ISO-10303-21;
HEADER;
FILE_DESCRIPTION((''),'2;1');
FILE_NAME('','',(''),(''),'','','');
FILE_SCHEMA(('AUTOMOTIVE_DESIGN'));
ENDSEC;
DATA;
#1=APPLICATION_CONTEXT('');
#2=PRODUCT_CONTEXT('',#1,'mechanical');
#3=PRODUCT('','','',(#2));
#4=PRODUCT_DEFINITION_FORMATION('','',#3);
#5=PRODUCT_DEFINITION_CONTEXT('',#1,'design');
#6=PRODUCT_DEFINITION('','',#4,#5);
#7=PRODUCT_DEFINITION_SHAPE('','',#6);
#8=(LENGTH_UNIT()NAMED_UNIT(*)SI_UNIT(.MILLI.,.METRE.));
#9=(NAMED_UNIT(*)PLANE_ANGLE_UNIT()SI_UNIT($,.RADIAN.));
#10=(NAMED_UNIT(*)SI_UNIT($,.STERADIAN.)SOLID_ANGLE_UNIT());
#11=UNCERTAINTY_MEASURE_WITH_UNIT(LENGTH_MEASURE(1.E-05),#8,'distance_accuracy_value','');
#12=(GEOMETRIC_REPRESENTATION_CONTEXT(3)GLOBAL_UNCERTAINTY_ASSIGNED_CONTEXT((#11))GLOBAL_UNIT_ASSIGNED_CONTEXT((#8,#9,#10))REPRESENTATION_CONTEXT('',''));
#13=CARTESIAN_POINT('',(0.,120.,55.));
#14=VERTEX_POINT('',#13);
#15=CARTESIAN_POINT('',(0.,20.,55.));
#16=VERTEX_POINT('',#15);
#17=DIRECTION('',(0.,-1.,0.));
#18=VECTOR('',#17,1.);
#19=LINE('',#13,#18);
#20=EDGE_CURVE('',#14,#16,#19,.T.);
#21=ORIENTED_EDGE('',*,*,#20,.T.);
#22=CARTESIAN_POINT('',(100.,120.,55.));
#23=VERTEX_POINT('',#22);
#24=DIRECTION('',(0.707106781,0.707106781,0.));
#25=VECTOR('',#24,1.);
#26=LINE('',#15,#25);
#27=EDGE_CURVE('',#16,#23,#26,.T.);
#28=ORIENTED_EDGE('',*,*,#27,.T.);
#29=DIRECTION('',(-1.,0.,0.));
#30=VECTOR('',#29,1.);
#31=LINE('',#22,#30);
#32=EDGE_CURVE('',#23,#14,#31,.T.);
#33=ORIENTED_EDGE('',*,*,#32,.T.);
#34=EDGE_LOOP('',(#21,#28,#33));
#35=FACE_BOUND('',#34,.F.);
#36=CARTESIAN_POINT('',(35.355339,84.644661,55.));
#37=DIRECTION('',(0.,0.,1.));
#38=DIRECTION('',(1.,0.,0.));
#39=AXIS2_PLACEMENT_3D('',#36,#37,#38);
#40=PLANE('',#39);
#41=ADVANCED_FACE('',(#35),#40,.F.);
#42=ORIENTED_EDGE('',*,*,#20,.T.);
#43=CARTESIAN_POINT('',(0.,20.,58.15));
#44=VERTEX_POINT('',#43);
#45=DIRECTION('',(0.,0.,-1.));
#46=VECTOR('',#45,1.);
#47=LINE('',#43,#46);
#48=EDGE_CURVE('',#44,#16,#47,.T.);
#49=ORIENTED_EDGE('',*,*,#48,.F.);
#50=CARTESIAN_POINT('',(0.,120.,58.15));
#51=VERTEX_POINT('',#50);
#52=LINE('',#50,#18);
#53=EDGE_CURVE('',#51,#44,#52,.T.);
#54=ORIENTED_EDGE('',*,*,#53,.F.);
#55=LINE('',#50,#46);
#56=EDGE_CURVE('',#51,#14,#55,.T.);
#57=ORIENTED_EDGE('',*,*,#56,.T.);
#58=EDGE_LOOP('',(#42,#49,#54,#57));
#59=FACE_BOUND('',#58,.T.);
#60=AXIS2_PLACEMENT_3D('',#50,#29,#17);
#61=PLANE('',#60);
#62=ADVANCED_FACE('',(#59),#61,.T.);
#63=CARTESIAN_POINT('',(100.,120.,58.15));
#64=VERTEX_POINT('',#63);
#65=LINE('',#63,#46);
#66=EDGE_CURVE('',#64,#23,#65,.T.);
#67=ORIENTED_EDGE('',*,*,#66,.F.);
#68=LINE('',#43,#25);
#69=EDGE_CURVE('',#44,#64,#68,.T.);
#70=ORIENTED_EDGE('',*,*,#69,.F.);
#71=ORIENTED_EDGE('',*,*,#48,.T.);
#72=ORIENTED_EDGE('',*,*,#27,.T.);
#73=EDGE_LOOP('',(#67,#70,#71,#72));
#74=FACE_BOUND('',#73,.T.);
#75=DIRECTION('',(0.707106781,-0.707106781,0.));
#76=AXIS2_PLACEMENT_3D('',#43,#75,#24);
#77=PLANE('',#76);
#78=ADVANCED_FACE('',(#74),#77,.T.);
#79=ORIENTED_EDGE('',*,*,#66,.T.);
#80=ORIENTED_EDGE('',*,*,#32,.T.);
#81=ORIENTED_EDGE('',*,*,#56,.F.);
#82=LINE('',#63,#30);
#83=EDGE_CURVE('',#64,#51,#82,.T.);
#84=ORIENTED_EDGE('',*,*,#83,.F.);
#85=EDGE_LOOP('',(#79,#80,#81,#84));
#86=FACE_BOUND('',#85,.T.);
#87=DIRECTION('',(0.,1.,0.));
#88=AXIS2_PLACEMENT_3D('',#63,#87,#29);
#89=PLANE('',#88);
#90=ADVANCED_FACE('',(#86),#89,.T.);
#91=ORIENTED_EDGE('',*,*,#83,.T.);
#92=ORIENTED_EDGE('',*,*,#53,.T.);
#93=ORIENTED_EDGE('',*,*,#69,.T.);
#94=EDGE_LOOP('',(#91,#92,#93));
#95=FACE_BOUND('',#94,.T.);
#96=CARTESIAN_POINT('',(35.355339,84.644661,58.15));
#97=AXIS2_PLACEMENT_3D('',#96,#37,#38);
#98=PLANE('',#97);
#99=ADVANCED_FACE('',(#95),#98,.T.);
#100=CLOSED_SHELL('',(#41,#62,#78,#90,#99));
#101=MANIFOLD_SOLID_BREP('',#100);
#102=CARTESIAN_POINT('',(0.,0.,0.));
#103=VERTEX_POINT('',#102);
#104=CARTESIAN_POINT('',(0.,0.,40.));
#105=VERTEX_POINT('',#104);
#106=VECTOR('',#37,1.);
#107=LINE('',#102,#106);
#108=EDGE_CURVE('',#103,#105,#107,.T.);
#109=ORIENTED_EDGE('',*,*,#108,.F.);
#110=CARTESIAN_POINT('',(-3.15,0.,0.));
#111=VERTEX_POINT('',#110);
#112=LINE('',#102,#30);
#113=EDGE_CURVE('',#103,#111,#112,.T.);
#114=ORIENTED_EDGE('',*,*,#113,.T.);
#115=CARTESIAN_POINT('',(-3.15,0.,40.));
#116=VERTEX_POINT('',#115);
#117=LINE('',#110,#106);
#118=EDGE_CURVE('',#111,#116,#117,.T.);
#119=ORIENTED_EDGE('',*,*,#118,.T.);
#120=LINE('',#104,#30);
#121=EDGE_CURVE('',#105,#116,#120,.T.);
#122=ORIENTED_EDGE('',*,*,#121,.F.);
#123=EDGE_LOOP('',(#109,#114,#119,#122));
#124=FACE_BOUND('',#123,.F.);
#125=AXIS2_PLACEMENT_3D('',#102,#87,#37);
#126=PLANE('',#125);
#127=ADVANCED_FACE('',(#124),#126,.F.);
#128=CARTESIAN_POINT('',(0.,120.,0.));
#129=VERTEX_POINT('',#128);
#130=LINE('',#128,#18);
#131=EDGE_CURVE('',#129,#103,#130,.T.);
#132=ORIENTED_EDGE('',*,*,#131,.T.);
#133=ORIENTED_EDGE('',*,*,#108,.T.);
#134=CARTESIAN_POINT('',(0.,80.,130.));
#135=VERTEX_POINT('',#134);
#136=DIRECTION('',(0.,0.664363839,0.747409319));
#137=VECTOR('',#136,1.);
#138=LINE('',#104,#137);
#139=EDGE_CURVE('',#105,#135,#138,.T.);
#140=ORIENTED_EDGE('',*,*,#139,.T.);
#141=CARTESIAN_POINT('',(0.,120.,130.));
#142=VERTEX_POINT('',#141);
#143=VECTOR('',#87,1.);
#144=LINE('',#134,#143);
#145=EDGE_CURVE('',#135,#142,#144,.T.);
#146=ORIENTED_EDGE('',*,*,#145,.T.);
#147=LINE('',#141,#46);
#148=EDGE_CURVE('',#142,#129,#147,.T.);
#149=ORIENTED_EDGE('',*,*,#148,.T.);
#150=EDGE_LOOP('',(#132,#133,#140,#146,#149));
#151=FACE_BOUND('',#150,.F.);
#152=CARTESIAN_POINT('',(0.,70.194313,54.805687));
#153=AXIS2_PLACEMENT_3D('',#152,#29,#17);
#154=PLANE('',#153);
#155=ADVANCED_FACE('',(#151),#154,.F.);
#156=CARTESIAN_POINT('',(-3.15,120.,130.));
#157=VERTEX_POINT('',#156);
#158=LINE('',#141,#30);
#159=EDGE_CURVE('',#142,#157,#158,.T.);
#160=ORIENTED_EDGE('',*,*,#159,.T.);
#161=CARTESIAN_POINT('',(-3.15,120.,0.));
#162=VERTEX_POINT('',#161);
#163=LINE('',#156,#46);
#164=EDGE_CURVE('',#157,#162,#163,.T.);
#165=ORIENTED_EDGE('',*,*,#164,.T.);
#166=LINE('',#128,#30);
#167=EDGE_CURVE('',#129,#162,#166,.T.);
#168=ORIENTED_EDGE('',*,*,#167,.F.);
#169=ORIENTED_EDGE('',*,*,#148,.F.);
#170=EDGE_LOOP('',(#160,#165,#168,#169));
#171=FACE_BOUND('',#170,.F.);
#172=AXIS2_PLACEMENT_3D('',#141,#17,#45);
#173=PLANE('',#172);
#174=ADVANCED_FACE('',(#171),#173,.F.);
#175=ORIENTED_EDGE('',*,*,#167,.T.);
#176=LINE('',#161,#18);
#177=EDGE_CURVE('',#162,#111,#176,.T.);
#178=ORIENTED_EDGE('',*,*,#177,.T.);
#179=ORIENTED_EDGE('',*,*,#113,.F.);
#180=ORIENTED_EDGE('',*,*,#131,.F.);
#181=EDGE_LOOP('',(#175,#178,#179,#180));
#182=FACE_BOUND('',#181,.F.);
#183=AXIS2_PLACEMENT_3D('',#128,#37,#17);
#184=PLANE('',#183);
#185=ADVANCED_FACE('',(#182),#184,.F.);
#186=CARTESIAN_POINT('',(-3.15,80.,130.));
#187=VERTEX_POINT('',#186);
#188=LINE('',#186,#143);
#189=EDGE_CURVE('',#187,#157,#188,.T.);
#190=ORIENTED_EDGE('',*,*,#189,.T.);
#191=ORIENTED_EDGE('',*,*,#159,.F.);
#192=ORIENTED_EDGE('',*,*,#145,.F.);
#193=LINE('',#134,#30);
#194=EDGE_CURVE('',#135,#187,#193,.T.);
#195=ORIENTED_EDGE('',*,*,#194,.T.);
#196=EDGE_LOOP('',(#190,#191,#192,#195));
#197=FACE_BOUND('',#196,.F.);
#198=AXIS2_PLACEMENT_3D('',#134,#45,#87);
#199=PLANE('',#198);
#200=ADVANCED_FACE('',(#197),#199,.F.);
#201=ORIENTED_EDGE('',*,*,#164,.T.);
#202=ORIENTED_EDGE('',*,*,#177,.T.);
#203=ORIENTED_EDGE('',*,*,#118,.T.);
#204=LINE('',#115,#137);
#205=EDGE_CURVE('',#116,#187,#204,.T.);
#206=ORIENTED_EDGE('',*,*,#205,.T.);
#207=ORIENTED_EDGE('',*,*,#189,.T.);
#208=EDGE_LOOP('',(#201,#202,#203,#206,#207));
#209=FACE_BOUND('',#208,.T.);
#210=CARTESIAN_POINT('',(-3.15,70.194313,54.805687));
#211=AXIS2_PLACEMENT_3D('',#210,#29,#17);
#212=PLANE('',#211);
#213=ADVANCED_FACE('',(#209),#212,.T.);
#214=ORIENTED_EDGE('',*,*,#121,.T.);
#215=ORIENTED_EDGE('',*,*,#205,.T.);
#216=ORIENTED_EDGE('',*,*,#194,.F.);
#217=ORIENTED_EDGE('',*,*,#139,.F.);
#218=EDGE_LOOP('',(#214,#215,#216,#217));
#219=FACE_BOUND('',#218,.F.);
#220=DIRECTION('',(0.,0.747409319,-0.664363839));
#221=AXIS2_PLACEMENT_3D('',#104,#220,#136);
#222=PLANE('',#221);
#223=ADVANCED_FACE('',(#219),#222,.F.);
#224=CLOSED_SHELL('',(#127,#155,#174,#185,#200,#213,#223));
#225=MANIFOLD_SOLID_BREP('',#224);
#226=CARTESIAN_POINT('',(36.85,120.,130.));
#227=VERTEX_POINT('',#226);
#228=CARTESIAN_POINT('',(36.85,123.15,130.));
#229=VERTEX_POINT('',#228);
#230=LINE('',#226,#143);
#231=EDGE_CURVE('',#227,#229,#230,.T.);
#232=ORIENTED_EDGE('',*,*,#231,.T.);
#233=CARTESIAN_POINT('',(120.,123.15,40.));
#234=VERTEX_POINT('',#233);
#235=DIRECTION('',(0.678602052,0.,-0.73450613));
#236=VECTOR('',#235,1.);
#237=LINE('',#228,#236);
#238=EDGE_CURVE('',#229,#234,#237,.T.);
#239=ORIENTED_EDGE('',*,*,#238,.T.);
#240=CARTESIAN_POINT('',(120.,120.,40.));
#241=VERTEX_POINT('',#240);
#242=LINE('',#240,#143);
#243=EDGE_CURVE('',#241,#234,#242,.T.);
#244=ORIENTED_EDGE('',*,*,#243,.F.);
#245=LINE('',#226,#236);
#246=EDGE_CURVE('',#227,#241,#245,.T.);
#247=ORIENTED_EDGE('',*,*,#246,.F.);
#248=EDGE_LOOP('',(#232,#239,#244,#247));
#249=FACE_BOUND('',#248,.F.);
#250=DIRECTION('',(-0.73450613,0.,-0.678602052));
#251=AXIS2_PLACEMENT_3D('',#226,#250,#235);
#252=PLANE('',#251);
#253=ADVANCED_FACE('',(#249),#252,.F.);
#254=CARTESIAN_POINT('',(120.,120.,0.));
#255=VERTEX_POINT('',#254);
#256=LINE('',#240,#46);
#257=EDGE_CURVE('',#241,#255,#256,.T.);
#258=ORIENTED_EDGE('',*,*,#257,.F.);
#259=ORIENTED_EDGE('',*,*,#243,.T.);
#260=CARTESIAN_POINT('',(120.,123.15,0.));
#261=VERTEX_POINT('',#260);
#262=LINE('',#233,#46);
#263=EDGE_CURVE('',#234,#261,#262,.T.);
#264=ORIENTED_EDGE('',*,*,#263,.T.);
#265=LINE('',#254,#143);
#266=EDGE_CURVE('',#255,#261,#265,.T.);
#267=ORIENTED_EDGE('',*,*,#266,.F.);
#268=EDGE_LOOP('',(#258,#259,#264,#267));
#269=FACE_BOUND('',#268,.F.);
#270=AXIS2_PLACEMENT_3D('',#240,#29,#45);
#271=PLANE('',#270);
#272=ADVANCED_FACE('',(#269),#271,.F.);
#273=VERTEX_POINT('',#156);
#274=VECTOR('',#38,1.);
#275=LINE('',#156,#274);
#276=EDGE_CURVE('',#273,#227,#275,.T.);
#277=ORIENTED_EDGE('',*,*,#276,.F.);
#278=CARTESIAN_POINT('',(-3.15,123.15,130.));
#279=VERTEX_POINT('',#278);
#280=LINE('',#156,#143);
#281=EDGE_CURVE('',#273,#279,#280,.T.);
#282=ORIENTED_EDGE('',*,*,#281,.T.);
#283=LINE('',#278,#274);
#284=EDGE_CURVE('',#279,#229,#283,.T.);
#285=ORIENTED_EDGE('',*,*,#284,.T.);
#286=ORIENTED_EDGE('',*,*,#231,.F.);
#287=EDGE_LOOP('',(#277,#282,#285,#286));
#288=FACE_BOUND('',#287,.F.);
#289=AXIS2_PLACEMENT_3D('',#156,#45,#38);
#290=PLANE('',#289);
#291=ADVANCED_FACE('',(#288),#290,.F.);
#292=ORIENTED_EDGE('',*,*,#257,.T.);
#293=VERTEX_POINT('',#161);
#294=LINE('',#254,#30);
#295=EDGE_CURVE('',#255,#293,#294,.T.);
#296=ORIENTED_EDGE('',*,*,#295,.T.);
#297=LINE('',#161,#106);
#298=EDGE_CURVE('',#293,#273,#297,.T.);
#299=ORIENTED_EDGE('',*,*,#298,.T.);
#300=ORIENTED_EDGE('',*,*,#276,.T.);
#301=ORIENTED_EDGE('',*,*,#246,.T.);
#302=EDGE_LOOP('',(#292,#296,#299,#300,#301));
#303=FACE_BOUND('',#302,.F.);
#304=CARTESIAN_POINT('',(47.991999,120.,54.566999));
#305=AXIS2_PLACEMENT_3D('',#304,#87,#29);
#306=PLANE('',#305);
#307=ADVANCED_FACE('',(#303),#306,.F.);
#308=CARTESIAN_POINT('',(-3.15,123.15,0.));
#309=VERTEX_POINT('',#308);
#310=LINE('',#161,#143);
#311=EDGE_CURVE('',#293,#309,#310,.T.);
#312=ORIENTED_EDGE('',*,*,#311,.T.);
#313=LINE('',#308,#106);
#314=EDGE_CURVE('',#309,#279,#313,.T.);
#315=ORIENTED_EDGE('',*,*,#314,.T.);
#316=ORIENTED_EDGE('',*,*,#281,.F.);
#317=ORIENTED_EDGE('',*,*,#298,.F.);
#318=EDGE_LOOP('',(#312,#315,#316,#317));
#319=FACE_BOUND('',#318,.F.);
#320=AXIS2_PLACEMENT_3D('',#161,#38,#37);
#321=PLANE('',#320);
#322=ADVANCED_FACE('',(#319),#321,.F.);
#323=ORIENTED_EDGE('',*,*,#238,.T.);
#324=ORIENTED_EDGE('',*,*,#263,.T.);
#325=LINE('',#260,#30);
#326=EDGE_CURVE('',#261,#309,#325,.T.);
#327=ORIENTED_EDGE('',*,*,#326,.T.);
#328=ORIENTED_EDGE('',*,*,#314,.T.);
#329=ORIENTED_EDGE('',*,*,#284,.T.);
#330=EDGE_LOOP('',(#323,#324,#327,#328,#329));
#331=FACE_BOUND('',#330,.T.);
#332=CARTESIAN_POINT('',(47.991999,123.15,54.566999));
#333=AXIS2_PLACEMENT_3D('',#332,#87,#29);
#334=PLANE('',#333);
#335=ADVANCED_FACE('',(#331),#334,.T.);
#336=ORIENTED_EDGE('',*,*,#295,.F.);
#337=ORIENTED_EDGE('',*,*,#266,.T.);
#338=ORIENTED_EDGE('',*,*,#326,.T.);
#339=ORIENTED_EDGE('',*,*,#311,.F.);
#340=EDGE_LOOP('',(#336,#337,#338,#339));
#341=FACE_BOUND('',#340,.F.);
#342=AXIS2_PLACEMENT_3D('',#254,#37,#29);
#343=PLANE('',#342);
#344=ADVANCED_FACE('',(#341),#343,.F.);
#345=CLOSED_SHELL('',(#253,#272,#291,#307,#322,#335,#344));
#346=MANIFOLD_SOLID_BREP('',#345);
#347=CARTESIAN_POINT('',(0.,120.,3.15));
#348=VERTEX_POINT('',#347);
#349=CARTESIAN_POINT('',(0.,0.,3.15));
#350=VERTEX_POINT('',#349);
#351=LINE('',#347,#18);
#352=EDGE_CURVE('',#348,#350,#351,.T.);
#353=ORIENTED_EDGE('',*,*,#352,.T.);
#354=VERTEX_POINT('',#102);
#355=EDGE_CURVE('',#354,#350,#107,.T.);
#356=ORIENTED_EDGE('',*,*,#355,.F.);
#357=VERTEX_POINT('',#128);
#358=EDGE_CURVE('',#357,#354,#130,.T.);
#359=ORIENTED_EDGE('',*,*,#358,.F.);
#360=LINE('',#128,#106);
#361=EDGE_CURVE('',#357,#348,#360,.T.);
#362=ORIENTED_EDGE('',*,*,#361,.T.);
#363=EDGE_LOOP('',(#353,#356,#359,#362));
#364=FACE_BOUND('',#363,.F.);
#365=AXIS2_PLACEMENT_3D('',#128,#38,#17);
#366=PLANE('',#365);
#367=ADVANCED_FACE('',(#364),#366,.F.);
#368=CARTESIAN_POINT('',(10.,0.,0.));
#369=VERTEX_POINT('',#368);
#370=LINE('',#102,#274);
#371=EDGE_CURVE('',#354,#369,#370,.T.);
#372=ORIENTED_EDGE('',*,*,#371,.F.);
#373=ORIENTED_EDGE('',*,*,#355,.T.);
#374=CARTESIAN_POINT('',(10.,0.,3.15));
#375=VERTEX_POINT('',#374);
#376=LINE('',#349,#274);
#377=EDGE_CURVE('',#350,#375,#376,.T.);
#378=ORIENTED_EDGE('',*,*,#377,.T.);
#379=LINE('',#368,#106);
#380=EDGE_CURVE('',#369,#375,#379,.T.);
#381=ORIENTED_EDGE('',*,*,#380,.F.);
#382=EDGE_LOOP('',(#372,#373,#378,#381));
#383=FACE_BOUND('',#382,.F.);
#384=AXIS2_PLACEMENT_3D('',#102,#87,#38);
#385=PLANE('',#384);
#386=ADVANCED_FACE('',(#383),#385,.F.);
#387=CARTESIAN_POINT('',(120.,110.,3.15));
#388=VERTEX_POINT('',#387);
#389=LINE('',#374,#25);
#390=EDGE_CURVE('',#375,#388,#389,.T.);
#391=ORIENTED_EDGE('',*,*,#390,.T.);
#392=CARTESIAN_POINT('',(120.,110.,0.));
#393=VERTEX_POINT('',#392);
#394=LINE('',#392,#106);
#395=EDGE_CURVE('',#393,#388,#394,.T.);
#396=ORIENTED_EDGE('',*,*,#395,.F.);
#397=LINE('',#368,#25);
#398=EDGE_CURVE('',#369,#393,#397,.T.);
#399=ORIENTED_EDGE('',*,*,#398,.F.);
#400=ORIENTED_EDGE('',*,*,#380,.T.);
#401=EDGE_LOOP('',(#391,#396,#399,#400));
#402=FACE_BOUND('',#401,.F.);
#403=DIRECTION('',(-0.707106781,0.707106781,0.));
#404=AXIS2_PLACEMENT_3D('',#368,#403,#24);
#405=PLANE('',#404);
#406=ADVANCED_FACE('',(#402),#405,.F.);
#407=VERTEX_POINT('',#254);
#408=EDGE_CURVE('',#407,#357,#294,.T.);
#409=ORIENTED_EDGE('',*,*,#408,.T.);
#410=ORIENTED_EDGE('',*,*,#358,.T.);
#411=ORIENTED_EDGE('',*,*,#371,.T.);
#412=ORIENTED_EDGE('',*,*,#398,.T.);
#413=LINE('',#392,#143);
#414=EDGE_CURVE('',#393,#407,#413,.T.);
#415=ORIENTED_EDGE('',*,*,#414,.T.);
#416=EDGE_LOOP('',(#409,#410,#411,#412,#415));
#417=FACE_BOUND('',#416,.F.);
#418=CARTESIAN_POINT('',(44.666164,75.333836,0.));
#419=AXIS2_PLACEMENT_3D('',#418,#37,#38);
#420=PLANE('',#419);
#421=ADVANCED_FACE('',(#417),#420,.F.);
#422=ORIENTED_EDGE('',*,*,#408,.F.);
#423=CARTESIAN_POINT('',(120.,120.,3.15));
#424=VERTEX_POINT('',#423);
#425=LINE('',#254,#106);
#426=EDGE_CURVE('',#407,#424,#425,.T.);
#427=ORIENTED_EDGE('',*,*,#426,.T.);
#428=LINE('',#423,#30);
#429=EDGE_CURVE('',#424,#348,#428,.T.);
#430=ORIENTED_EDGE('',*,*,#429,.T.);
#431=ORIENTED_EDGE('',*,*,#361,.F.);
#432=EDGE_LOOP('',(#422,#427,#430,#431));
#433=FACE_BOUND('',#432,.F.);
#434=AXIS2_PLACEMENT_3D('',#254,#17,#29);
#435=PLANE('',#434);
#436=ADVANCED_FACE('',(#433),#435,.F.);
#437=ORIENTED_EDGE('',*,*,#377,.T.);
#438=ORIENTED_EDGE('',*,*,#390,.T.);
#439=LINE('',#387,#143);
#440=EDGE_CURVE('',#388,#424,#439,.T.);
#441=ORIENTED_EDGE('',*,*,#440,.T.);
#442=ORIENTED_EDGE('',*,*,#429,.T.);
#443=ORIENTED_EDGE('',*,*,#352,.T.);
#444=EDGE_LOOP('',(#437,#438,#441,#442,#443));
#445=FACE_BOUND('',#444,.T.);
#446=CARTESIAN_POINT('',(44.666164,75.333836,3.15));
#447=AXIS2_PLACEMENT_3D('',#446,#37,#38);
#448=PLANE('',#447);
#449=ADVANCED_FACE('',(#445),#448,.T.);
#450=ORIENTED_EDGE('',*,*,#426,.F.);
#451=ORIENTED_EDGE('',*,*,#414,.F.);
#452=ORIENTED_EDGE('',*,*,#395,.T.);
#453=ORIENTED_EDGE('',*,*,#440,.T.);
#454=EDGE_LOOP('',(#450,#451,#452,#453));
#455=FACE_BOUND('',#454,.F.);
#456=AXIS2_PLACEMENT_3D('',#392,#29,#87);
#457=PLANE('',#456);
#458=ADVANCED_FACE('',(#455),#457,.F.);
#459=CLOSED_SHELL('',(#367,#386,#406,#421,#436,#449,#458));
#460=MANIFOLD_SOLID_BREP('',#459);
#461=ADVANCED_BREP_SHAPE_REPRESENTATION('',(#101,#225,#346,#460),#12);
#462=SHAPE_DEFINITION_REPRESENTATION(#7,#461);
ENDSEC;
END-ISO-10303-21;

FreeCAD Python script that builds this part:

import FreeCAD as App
import Part
import Sketcher
Q = App.Units.Quantity

doc = App.newDocument("Part")
body = doc.addObject("PartDesign::Body", "Body")

# Sketch on XY plane
sketch1 = body.newObject("Sketcher::SketchObject", "Sketch")
sketch1.AttachmentSupport = (doc.getObject("XY_Plane"), [""])
sketch1.MapMode = "FlatFace"
sketch1.addGeometry([
    Part.LineSegment(App.Vector(0, 120, 0), App.Vector(0, 0, 0)),  # 0
    Part.LineSegment(App.Vector(0, 0, 0), App.Vector(10, 0, 0)),  # 1
    Part.LineSegment(App.Vector(10, 0, 0), App.Vector(120, 110, 0)),  # 2
    Part.LineSegment(App.Vector(120, 110, 0), App.Vector(120, 120, 0)),  # 3
    Part.LineSegment(App.Vector(120, 120, 0), App.Vector(0, 120, 0)),  # 4
], False)
sketch1.addConstraint([
    Sketcher.Constraint("Coincident", 0, 2, 1, 1),
    Sketcher.Constraint("Coincident", 1, 2, 2, 1),
    Sketcher.Constraint("Coincident", 2, 2, 3, 1),
    Sketcher.Constraint("Coincident", 3, 2, 4, 1),
    Sketcher.Constraint("Coincident", 4, 2, 0, 1),
    Sketcher.Constraint("Vertical", 0),
    Sketcher.Constraint("Horizontal", 1),
    Sketcher.Constraint("Vertical", 3),
    Sketcher.Constraint("Horizontal", 4),
    Sketcher.Constraint("Coincident", 0, 2, -1, 1),
    Sketcher.Constraint("Equal", 4, 0),
    Sketcher.Constraint("Equal", 1, 3),
    Sketcher.Constraint("DistanceX", 1, 1, 1, 2, Q("10 mm")),
    Sketcher.Constraint("DistanceX", 4, 2, 4, 1, Q("120 mm")),
])
pad1 = body.newObject("PartDesign::Pad", "Pad")
pad1.Profile = sketch1
pad1.Length = 3.15
body2 = doc.addObject("PartDesign::Body", "Body001")

# Sketch on YZ plane
sketch2 = body2.newObject("Sketcher::SketchObject", "Sketch001")
sketch2.AttachmentSupport = (doc.getObject("YZ_Plane001"), [""])
sketch2.MapMode = "FlatFace"
sketch2.addGeometry([
    Part.LineSegment(App.Vector(0, 40, 0), App.Vector(80, 130, 0)),  # 0
    Part.LineSegment(App.Vector(80, 130, 0), App.Vector(120, 130, 0)),  # 1
    Part.LineSegment(App.Vector(120, 130, 0), App.Vector(120, 0, 0)),  # 2
    Part.LineSegment(App.Vector(120, 0, 0), App.Vector(0, 0, 0)),  # 3
    Part.LineSegment(App.Vector(0, 0, 0), App.Vector(0, 40, 0)),  # 4
], False)
sketch2.addConstraint([
    Sketcher.Constraint("Coincident", 0, 2, 1, 1),
    Sketcher.Constraint("Coincident", 1, 2, 2, 1),
    Sketcher.Constraint("Coincident", 2, 2, 3, 1),
    Sketcher.Constraint("Coincident", 3, 2, 4, 1),
    Sketcher.Constraint("Coincident", 4, 2, 0, 1),
    Sketcher.Constraint("Horizontal", 1),
    Sketcher.Constraint("Vertical", 2),
    Sketcher.Constraint("Horizontal", 3),
    Sketcher.Constraint("Vertical", 4),
    Sketcher.Constraint("Coincident", 3, 2, -1, 1),
    Sketcher.Constraint("Equal", 1, 4),
    Sketcher.Constraint("DistanceX", 1, 1, 1, 2, Q("40 mm")),
    Sketcher.Constraint("DistanceX", 3, 2, 3, 1, Q("120 mm")),
    Sketcher.Constraint("DistanceY", 2, 2, 2, 1, Q("130 mm")),
])
pad2 = body2.newObject("PartDesign::Pad", "Pad001")
pad2.Profile = sketch2
pad2.Length = 3.15
pad2.Reversed = True
body3 = doc.addObject("PartDesign::Body", "Body002")

# Sketch on XZ plane
sketch3 = body3.newObject("Sketcher::SketchObject", "Sketch002")
sketch3.AttachmentSupport = (doc.getObject("XZ_Plane002"), [""])
sketch3.MapMode = "FlatFace"
sketch3.AttachmentOffset = App.Placement(App.Vector(0, 0, -120), App.Rotation())
sketch3.addGeometry([
    Part.LineSegment(App.Vector(120, 40, 0), App.Vector(120, 0, 0)),  # 0
    Part.LineSegment(App.Vector(120, 0, 0), App.Vector(-3, 0, 0)),  # 1
    Part.LineSegment(App.Vector(-3, 0, 0), App.Vector(-3, 130, 0)),  # 2
    Part.LineSegment(App.Vector(-3, 130, 0), App.Vector(37, 130, 0)),  # 3
    Part.LineSegment(App.Vector(37, 130, 0), App.Vector(120, 40, 0)),  # 4
], False)
sketch3.addConstraint([
    Sketcher.Constraint("Coincident", 0, 2, 1, 1),
    Sketcher.Constraint("Coincident", 1, 2, 2, 1),
    Sketcher.Constraint("Coincident", 2, 2, 3, 1),
    Sketcher.Constraint("Coincident", 3, 2, 4, 1),
    Sketcher.Constraint("Coincident", 4, 2, 0, 1),
    Sketcher.Constraint("Vertical", 0),
    Sketcher.Constraint("Horizontal", 1),
    Sketcher.Constraint("Vertical", 2),
    Sketcher.Constraint("Horizontal", 3),
    Sketcher.Constraint("PointOnObject", 0, 2, -1),
    Sketcher.Constraint("Equal", 3, 0),
    Sketcher.Constraint("DistanceX", 3, 1, 3, 2, Q("40 mm")),
    Sketcher.Constraint("DistanceY", 2, 1, 2, 2, Q("130 mm")),
    Sketcher.Constraint("DistanceX", -1, 1, 0, 2, Q("120 mm")),
    Sketcher.Constraint("DistanceX", 1, 2, 1, 1, Q("123.15 mm")),
])
pad3 = body3.newObject("PartDesign::Pad", "Pad002")
pad3.Profile = sketch3
pad3.Length = 3.15
pad3.Reversed = True
body4 = doc.addObject("PartDesign::Body", "Body003")

# Sketch on XY plane
sketch4 = body4.newObject("Sketcher::SketchObject", "Sketch003")
sketch4.AttachmentSupport = (doc.getObject("XY_Plane003"), [""])
sketch4.MapMode = "FlatFace"
sketch4.AttachmentOffset = App.Placement(App.Vector(0, 0, 58.15), App.Rotation())
sketch4.addGeometry([
    Part.LineSegment(App.Vector(0, 120, 0), App.Vector(0, 20, 0)),
    Part.LineSegment(App.Vector(0, 20, 0), App.Vector(100, 120, 0)),
    Part.LineSegment(App.Vector(100, 120, 0), App.Vector(0, 120, 0)),
], False)
sketch4.addConstraint([
    Sketcher.Constraint("Coincident", 0, 2, 1, 1),
    Sketcher.Constraint("Coincident", 1, 2, 2, 1),
    Sketcher.Constraint("Coincident", 2, 2, 0, 1),
    Sketcher.Constraint("Vertical", 0),
    Sketcher.Constraint("Horizontal", 2),
    Sketcher.Constraint("PointOnObject", 0, 2, -2),
    Sketcher.Constraint("Equal", 2, 0),
    Sketcher.Constraint("DistanceX", 2, 2, 2, 1, Q("100 mm")),
    Sketcher.Constraint("DistanceY", -1, 1, 0, 2, Q("20 mm")),
])
pad4 = body4.newObject("PartDesign::Pad", "Pad003")
pad4.Profile = sketch4
pad4.Length = 3.15
pad4.Reversed = True

doc.recompute()
